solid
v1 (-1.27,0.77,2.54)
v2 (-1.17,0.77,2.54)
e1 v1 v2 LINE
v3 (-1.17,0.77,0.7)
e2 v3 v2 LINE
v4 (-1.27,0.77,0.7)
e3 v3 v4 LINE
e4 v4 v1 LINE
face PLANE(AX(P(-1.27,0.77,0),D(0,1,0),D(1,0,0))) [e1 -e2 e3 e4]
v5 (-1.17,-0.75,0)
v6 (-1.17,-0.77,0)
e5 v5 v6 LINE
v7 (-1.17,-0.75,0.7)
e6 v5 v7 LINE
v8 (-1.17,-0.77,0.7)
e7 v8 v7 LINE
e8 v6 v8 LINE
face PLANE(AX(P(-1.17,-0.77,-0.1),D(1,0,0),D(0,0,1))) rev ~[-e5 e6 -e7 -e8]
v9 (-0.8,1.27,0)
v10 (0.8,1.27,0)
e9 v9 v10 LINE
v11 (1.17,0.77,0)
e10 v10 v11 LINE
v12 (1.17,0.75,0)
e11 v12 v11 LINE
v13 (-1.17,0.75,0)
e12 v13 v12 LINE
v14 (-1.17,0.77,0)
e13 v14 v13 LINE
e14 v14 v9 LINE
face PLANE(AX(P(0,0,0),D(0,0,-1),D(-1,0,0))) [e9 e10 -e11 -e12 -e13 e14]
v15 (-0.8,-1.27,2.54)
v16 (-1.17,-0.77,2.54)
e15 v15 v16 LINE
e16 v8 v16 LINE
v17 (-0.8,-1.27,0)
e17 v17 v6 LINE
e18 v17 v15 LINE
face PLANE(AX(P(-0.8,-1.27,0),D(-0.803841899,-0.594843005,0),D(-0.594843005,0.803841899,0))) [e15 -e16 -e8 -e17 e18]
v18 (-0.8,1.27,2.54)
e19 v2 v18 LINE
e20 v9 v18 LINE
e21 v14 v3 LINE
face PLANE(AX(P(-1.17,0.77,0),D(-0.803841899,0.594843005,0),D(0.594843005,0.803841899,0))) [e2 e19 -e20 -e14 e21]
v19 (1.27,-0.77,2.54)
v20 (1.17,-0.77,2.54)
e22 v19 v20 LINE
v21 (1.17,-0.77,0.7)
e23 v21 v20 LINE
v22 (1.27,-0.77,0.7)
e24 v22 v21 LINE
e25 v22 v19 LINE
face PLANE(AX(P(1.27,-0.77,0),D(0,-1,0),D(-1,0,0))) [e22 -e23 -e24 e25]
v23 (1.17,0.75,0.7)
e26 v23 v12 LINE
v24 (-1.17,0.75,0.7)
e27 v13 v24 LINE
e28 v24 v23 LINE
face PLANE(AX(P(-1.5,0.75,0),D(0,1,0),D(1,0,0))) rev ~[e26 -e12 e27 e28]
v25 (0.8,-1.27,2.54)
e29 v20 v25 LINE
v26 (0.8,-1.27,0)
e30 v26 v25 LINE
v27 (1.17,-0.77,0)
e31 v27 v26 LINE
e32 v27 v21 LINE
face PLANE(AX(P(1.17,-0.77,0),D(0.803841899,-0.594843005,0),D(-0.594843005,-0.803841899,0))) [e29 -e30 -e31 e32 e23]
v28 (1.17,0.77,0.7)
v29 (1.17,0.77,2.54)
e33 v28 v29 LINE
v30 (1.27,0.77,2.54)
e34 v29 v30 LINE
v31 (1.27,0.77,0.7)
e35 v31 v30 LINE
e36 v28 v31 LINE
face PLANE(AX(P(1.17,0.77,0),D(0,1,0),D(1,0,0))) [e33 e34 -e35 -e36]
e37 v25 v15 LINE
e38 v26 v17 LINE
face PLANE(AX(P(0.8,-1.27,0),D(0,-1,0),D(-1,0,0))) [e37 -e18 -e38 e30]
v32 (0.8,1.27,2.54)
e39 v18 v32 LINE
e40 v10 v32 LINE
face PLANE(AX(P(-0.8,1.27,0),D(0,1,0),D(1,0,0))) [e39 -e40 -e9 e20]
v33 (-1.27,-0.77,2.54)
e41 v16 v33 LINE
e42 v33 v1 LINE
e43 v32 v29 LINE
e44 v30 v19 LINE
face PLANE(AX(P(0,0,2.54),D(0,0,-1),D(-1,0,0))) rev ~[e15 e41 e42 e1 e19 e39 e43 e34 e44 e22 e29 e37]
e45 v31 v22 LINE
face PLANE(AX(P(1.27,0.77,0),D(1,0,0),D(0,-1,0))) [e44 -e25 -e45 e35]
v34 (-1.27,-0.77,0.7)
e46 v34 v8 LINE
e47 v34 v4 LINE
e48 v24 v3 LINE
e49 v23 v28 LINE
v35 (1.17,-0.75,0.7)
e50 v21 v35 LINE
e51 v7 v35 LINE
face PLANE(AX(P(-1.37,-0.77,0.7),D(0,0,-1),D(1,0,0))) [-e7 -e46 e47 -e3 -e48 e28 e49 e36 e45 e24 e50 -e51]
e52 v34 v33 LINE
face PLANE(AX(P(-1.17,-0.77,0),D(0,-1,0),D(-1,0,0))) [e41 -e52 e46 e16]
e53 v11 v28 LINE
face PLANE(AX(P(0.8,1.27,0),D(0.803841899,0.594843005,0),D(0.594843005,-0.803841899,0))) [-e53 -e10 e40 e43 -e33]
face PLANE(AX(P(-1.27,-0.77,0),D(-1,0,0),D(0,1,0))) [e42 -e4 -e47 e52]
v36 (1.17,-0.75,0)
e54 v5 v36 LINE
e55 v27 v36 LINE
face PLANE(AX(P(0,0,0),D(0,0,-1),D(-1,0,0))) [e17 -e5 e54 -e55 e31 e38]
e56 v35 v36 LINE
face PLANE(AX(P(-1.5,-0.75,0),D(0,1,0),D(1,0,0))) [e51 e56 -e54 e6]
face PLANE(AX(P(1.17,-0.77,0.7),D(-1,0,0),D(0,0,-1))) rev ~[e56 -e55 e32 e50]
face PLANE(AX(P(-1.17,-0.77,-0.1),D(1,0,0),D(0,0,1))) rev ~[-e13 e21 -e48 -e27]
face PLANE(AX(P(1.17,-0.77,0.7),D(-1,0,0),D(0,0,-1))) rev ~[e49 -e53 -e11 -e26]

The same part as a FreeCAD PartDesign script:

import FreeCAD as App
import Part
import Sketcher

doc = App.newDocument("Part")
body = doc.addObject("PartDesign::Body", "Body")

sketch1 = body.newObject("Sketcher::SketchObject", "Sketch")
sketch1.AttachmentSupport = (doc.getObject("XY_Plane"), [""])
sketch1.MapMode = "FlatFace"
sketch1.addGeometry(Part.LineSegment(App.Vector(-1.17, 0.77, 0), App.Vector(-1.27, 0.77, 0)), False)
sketch1.addGeometry(Part.LineSegment(App.Vector(-1.27, 0.77, 0), App.Vector(-1.27, -0.77, 0)), False)
sketch1.addGeometry(Part.LineSegment(App.Vector(-1.27, -0.77, 0), App.Vector(-1.17, -0.77, 0)), False)
sketch1.addGeometry(Part.LineSegment(App.Vector(-1.17, -0.77, 0), App.Vector(-0.8, -1.27, 0)), False)
sketch1.addGeometry(Part.LineSegment(App.Vector(-0.8, -1.27, 0), App.Vector(0.8, -1.27, 0)), False)
sketch1.addGeometry(Part.LineSegment(App.Vector(0.8, -1.27, 0), App.Vector(1.17, -0.77, 0)), False)
sketch1.addGeometry(Part.LineSegment(App.Vector(1.17, -0.77, 0), App.Vector(1.27, -0.77, 0)), False)
sketch1.addGeometry(Part.LineSegment(App.Vector(1.27, -0.77, 0), App.Vector(1.27, 0.77, 0)), False)
sketch1.addGeometry(Part.LineSegment(App.Vector(1.27, 0.77, 0), App.Vector(1.17, 0.77, 0)), False)
sketch1.addGeometry(Part.LineSegment(App.Vector(1.17, 0.77, 0), App.Vector(0.8, 1.27, 0)), False)
sketch1.addGeometry(Part.LineSegment(App.Vector(0.8, 1.27, 0), App.Vector(-0.8, 1.27, 0)), False)
sketch1.addGeometry(Part.LineSegment(App.Vector(-0.8, 1.27, 0), App.Vector(-1.17, 0.77, 0)), False)
sketch1.addConstraint(Sketcher.Constraint("Coincident", 0, 2, 1, 1))
sketch1.addConstraint(Sketcher.Constraint("Coincident", 1, 2, 2, 1))
sketch1.addConstraint(Sketcher.Constraint("Coincident", 2, 2, 3, 1))
sketch1.addConstraint(Sketcher.Constraint("Coincident", 3, 2, 4, 1))
sketch1.addConstraint(Sketcher.Constraint("Coincident", 4, 2, 5, 1))
sketch1.addConstraint(Sketcher.Constraint("Coincident", 5, 2, 6, 1))
sketch1.addConstraint(Sketcher.Constraint("Coincident", 6, 2, 7, 1))
sketch1.addConstraint(Sketcher.Constraint("Coincident", 7, 2, 8, 1))
sketch1.addConstraint(Sketcher.Constraint("Coincident", 8, 2, 9, 1))
sketch1.addConstraint(Sketcher.Constraint("Coincident", 9, 2, 10, 1))
sketch1.addConstraint(Sketcher.Constraint("Coincident", 10, 2, 11, 1))
sketch1.addConstraint(Sketcher.Constraint("Coincident", 11, 2, 0, 1))
sketch1.addConstraint(Sketcher.Constraint("Horizontal", 0))
sketch1.addConstraint(Sketcher.Constraint("Vertical", 1))
sketch1.addConstraint(Sketcher.Constraint("Horizontal", 2))
sketch1.addConstraint(Sketcher.Constraint("Horizontal", 4))
sketch1.addConstraint(Sketcher.Constraint("Horizontal", 6))
sketch1.addConstraint(Sketcher.Constraint("Vertical", 7))
sketch1.addConstraint(Sketcher.Constraint("Horizontal", 8))
sketch1.addConstraint(Sketcher.Constraint("Horizontal", 10))
sketch1.addConstraint(Sketcher.Constraint("Symmetric", 0, 2, 6, 2, -1, 1))
sketch1.addConstraint(Sketcher.Constraint("Symmetric", 2, 2, 8, 2, -1, 1))
sketch1.addConstraint(Sketcher.Constraint("Symmetric", 3, 2, 9, 2, -1, 1))
sketch1.addConstraint(Sketcher.Constraint("Symmetric", 2, 2, 5, 2, -2))
sketch1.addConstraint(Sketcher.Constraint("Parallel", 5, 11))
sketch1.addConstraint(Sketcher.Constraint("Vertical", 4, 2, 9, 2))
sketch1.addConstraint(Sketcher.Constraint("Vertical", 3, 2, 10, 2))
sketch1.addConstraint(Sketcher.Constraint("DistanceX", 0, 2, 0, 1, 0.1))
sketch1.addConstraint(Sketcher.Constraint("DistanceX", 4, 1, 4, 2, 1.6))
sketch1.addConstraint(Sketcher.Constraint("DistanceY", 1, 2, 1, 1, 1.54))
sketch1.addConstraint(Sketcher.Constraint("DistanceY", 3, 2, 2, 2, 0.5))
sketch1.addConstraint(Sketcher.Constraint("DistanceX", 0, 2, -1, 1, 1.27))
pad1 = body.newObject("PartDesign::Pad", "Pad")
pad1.Profile = sketch1
pad1.Length = 2.54

sketch2 = body.newObject("Sketcher::SketchObject", "Sketch001")
sketch2.AttachmentSupport = (doc.getObject("XZ_Plane"), [""])
sketch2.MapMode = "FlatFace"
sketch2.AttachmentOffset = App.Placement(App.Vector(0, 0, 0.77), App.Rotation())
sketch2.addGeometry(Part.LineSegment(App.Vector(1.37, 0.7, 0), App.Vector(1.17, 0.7, 0)), False)
sketch2.addGeometry(Part.LineSegment(App.Vector(1.17, 0.7, 0), App.Vector(1.17, -0.1, 0)), False)
sketch2.addGeometry(Part.LineSegment(App.Vector(1.17, -0.1, 0), App.Vector(1.37, -0.1, 0)), False)
sketch2.addGeometry(Part.LineSegment(App.Vector(1.37, -0.1, 0), App.Vector(1.37, 0.7, 0)), False)
sketch2.addGeometry(Part.LineSegment(App.Vector(-1.37, 0.7, 0), App.Vector(-1.37, -0.1, 0)), False)
sketch2.addGeometry(Part.LineSegment(App.Vector(-1.37, -0.1, 0), App.Vector(-1.17, -0.1, 0)), False)
sketch2.addGeometry(Part.LineSegment(App.Vector(-1.17, -0.1, 0), App.Vector(-1.17, 0.7, 0)), False)
sketch2.addGeometry(Part.LineSegment(App.Vector(-1.17, 0.7, 0), App.Vector(-1.37, 0.7, 0)), False)
sketch2.addConstraint(Sketcher.Constraint("Coincident", 0, 2, 1, 1))
sketch2.addConstraint(Sketcher.Constraint("Coincident", 1, 2, 2, 1))
sketch2.addConstraint(Sketcher.Constraint("Coincident", 2, 2, 3, 1))
sketch2.addConstraint(Sketcher.Constraint("Coincident", 3, 2, 0, 1))
sketch2.addConstraint(Sketcher.Constraint("Coincident", 4, 2, 5, 1))
sketch2.addConstraint(Sketcher.Constraint("Coincident", 5, 2, 6, 1))
sketch2.addConstraint(Sketcher.Constraint("Coincident", 6, 2, 7, 1))
sketch2.addConstraint(Sketcher.Constraint("Coincident", 7, 2, 4, 1))
sketch2.addConstraint(Sketcher.Constraint("Horizontal", 0))
sketch2.addConstraint(Sketcher.Constraint("Vertical", 1))
sketch2.addConstraint(Sketcher.Constraint("Horizontal", 2))
sketch2.addConstraint(Sketcher.Constraint("Vertical", 3))
sketch2.addConstraint(Sketcher.Constraint("Vertical", 4))
sketch2.addConstraint(Sketcher.Constraint("Horizontal", 5))
sketch2.addConstraint(Sketcher.Constraint("Vertical", 6))
sketch2.addConstraint(Sketcher.Constraint("Horizontal", 7))
sketch2.addConstraint(Sketcher.Constraint("Symmetric", 2, 2, 4, 2, -2))
sketch2.addConstraint(Sketcher.Constraint("Symmetric", 0, 2, 6, 2, -2))
sketch2.addConstraint(Sketcher.Constraint("DistanceX", 0, 2, 0, 1, 0.2))
sketch2.addConstraint(Sketcher.Constraint("DistanceY", 1, 2, 1, 1, 0.8))
sketch2.addConstraint(Sketcher.Constraint("DistanceY", -1, 1, 0, 2, 0.7))
sketch2.addConstraint(Sketcher.Constraint("DistanceX", -1, 1, 0, 2, 1.17))
pocket1 = body.newObject("PartDesign::Pocket", "Pocket")
pocket1.Profile = sketch2
pocket1.Type = "ThroughAll"

sketch3 = body.newObject("Sketcher::SketchObject", "Sketch002")
sketch3.AttachmentSupport = (doc.getObject("XY_Plane"), [""])
sketch3.MapMode = "FlatFace"
sketch3.addGeometry(Part.LineSegment(App.Vector(-1.5, -0.8, 0), App.Vector(-1.5, 0.8, 0)), False)
sketch3.addGeometry(Part.LineSegment(App.Vector(-1.5, 0.8, 0), App.Vector(1.5, 0.8, 0)), False)
sketch3.addGeometry(Part.LineSegment(App.Vector(1.5, 0.8, 0), App.Vector(1.5, -0.8, 0)), False)
sketch3.addGeometry(Part.LineSegment(App.Vector(1.5, -0.8, 0), App.Vector(-1.5, -0.8, 0)), False)
sketch3.addConstraint(Sketcher.Constraint("Coincident", 0, 2, 1, 1))
sketch3.addConstraint(Sketcher.Constraint("Coincident", 1, 2, 2, 1))
sketch3.addConstraint(Sketcher.Constraint("Coincident", 2, 2, 3, 1))
sketch3.addConstraint(Sketcher.Constraint("Coincident", 3, 2, 0, 1))
sketch3.addConstraint(Sketcher.Constraint("Vertical", 0))
sketch3.addConstraint(Sketcher.Constraint("Horizontal", 1))
sketch3.addConstraint(Sketcher.Constraint("Vertical", 2))
sketch3.addConstraint(Sketcher.Constraint("Horizontal", 3))
sketch3.addConstraint(Sketcher.Constraint("Symmetric", 0, 2, 2, 2, -1, 1))
sketch3.addConstraint(Sketcher.Constraint("DistanceX", 1, 1, 1, 2, 3.0))
sketch3.addConstraint(Sketcher.Constraint("DistanceY", 0, 1, 0, 2, 1.5))
pocket2 = body.newObject("PartDesign::Pocket", "Pocket001")
pocket2.Profile = sketch3
pocket2.Length = 0.7
pocket2.Reversed = True

doc.recompute()
